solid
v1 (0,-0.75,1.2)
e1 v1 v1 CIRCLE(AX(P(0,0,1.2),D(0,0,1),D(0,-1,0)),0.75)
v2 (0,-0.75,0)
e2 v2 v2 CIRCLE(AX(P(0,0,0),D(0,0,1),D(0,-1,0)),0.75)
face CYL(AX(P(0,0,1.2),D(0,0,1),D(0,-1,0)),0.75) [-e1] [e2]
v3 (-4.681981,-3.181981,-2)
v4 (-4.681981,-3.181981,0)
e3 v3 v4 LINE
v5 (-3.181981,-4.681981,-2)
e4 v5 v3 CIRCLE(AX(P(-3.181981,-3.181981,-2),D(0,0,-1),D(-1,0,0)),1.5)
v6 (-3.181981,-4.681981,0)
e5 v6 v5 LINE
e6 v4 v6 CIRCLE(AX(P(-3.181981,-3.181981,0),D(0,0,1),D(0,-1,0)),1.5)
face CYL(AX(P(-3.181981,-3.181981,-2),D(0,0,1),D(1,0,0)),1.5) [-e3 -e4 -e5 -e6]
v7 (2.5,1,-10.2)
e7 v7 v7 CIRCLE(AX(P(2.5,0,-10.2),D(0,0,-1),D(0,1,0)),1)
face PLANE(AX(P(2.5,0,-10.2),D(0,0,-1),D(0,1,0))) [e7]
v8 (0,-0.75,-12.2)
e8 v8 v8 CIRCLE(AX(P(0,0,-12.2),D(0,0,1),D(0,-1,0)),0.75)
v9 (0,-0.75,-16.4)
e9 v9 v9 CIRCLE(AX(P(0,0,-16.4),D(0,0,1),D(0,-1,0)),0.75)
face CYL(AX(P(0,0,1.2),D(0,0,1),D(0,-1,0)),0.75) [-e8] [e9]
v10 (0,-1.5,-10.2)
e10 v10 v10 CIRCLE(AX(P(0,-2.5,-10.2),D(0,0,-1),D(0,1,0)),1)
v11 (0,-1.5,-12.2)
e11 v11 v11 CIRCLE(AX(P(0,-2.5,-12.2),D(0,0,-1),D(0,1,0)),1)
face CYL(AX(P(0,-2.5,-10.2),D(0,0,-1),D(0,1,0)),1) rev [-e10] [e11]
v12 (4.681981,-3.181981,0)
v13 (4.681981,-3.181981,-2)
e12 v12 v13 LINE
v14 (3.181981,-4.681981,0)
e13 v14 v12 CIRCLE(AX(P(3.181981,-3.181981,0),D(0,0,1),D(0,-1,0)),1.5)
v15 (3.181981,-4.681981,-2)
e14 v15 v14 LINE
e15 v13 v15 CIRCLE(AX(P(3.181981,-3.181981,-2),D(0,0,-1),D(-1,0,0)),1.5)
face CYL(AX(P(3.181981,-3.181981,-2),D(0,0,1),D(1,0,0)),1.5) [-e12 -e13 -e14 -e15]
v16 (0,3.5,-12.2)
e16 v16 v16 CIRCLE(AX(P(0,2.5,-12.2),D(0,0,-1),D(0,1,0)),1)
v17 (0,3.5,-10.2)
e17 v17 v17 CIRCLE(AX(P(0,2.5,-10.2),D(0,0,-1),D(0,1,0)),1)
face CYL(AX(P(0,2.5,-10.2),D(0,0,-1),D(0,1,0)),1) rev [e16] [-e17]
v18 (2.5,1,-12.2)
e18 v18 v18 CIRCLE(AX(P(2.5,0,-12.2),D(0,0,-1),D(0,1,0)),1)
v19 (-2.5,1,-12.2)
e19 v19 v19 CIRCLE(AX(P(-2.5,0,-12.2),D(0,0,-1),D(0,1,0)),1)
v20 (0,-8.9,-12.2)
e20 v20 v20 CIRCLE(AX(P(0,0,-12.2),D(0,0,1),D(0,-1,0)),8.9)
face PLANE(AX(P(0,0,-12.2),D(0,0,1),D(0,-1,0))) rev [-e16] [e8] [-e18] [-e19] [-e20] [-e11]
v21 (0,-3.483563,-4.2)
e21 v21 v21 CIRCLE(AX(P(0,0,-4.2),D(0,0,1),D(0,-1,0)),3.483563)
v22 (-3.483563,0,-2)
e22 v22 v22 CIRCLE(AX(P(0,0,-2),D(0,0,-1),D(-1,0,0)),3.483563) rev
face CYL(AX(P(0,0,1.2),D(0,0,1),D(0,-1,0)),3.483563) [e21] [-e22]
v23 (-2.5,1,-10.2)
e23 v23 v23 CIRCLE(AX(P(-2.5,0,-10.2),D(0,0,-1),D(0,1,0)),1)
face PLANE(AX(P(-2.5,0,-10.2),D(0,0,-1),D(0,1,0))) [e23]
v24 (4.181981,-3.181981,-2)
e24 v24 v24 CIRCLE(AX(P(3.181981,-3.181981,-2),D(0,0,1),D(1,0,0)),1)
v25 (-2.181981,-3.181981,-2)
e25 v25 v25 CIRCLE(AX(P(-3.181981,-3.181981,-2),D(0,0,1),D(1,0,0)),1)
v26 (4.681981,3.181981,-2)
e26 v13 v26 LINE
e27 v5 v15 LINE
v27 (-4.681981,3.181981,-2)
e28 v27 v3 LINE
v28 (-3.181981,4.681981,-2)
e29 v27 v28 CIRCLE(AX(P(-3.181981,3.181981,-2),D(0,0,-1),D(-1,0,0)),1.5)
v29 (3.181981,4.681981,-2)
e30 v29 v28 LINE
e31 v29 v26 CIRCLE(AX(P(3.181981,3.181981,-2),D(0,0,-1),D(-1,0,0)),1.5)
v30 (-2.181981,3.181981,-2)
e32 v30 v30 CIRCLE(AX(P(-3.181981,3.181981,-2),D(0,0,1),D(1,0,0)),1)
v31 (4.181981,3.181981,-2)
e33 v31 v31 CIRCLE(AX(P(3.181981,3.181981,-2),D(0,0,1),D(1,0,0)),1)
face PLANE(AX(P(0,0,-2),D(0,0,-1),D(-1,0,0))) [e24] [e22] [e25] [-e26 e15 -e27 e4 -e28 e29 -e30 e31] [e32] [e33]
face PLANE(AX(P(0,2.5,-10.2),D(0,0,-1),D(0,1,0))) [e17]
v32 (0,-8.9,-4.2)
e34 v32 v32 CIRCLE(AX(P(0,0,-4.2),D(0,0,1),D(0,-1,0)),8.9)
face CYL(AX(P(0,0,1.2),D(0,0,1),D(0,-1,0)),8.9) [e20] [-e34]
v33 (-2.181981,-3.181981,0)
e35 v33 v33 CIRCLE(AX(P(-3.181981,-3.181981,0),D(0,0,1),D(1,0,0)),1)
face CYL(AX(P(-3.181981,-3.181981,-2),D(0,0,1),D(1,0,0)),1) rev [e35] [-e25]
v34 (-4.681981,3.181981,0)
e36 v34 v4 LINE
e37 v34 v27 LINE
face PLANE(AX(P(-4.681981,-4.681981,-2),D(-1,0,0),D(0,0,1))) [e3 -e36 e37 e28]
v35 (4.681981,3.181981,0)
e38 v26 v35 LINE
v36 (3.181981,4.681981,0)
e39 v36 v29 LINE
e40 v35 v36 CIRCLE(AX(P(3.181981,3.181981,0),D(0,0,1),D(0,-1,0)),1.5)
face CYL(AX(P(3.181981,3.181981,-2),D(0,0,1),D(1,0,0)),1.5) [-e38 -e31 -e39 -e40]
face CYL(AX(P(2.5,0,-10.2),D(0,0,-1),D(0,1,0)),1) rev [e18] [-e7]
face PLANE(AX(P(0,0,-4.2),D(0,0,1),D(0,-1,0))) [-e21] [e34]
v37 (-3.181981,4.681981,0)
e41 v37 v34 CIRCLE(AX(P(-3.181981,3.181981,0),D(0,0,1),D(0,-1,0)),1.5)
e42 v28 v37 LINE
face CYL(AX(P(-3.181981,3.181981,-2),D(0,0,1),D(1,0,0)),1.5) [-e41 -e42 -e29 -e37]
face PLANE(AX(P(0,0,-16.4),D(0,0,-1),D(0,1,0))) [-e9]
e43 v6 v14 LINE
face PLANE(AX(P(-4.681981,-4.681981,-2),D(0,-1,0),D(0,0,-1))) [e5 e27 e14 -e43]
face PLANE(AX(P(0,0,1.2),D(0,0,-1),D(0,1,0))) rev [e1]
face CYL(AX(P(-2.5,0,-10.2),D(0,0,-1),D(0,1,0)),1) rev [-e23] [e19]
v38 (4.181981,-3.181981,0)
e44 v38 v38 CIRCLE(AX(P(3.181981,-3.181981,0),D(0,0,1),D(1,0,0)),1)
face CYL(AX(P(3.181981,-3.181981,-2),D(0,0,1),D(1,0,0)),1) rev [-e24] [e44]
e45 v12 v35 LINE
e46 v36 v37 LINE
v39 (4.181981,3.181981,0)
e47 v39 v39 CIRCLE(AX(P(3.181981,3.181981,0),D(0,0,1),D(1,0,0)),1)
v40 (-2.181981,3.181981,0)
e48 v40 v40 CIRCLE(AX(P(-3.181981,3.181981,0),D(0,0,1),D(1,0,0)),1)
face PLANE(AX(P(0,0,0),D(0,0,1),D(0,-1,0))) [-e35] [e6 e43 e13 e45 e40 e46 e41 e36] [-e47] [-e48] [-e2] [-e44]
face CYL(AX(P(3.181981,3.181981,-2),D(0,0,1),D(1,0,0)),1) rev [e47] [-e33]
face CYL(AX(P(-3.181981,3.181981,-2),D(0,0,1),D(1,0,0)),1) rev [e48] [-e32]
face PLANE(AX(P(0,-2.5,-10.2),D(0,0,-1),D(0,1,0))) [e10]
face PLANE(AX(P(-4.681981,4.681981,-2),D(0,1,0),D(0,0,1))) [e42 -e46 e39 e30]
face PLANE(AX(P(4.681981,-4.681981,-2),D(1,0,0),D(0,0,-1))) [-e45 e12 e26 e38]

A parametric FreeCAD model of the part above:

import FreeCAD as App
import Part
import Sketcher

V = App.Vector


def edges_at(feature, points):
    """Names of the edges that pass closest to the given points."""
    edges = feature.Shape.Edges
    near = lambda p: min(range(len(edges)), key=lambda i: edges[i].distToShape(Part.Vertex(*p))[0])
    return sorted({f"Edge{near(p) + 1}" for p in points})

doc = App.newDocument("Part")
body = doc.addObject("PartDesign::Body", "Body")

sketch1 = body.newObject("Sketcher::SketchObject", "Sketch")
sketch1.AttachmentSupport = (doc.getObject("YZ_Plane"), [""])
sketch1.MapMode = "FlatFace"
sketch1.addGeometry([
    Part.LineSegment(V(0.8, 1.2, 0), V(0, 1.2, 0)),
    Part.LineSegment(V(0, 1.2, 0), V(0, -16.4, 0)),
    Part.LineSegment(V(0, -16.4, 0), V(0.8, -16.4, 0)),
    Part.LineSegment(V(0.8, -16.4, 0), V(0.8, -12.2, 0)),
    Part.LineSegment(V(0.8, -12.2, 0), V(8.9, -12.2, 0)),
    Part.LineSegment(V(8.9, -12.2, 0), V(8.9, -4.2, 0)),
    Part.LineSegment(V(8.9, -4.2, 0), V(3.5, -4.2, 0)),
    Part.LineSegment(V(3.5, -4.2, 0), V(3.5, 0, 0)),
    Part.LineSegment(V(3.5, 0, 0), V(0.7, 0, 0)),
    Part.LineSegment(V(0.8, 0, 0), V(0.8, 1.2, 0)),
], False)
sketch1.addConstraint([
    Sketcher.Constraint("Coincident", 0, 2, 1, 1),
    Sketcher.Constraint("Coincident", 1, 2, 2, 1),
    Sketcher.Constraint("Coincident", 2, 2, 3, 1),
    Sketcher.Constraint("Coincident", 3, 2, 4, 1),
    Sketcher.Constraint("Coincident", 4, 2, 5, 1),
    Sketcher.Constraint("Coincident", 5, 2, 6, 1),
    Sketcher.Constraint("Coincident", 6, 2, 7, 1),
    Sketcher.Constraint("Coincident", 7, 2, 8, 1),
    Sketcher.Constraint("Coincident", 8, 2, 9, 1),
    Sketcher.Constraint("Coincident", 9, 2, 0, 1),
    Sketcher.Constraint("Horizontal", 0),
    Sketcher.Constraint("Vertical", 1),
    Sketcher.Constraint("Horizontal", 2),
    Sketcher.Constraint("Vertical", 3),
    Sketcher.Constraint("Horizontal", 4),
    Sketcher.Constraint("Vertical", 5),
    Sketcher.Constraint("Horizontal", 6),
    Sketcher.Constraint("Vertical", 7),
    Sketcher.Constraint("Horizontal", 8),
    Sketcher.Constraint("Vertical", 9),
    Sketcher.Constraint("PointOnObject", 0, 2, -2),
    Sketcher.Constraint("PointOnObject", 7, 2, -1),
    Sketcher.Constraint("Vertical", 3, 2, 8, 2),
    Sketcher.Constraint("Equal", 3, 7),
    Sketcher.Constraint("DistanceY", 5, 1, 5, 2, 8.0),
    Sketcher.Constraint("DistanceY", 1, 2, 1, 1, 17.6),
    Sketcher.Constraint("DistanceY", 3, 1, 3, 2, 4.2),
    Sketcher.Constraint("DistanceX", 0, 2, 0, 1, 0.75),
    Sketcher.Constraint("DistanceX", 4, 1, 4, 2, 8.15),
    Sketcher.Constraint("DistanceX", 6, 2, 6, 1, 5.416437),
])
revolution = body.newObject("PartDesign::Revolution", "Revolution")
revolution.Profile = sketch1
revolution.ReferenceAxis = (sketch1, ["V_Axis"])
revolution.Angle = 360

sketch2 = body.newObject("Sketcher::SketchObject", "Sketch001")
sketch2.AttachmentSupport = (doc.getObject("XY_Plane"), [""])
sketch2.MapMode = "FlatFace"
sketch2.addGeometry([
    Part.LineSegment(V(-4.7, 4.7, 0), V(-4.7, -4.7, 0)),
    Part.LineSegment(V(-4.7, -4.7, 0), V(4.7, -4.7, 0)),
    Part.LineSegment(V(4.7, -4.7, 0), V(4.7, 4.7, 0)),
    Part.LineSegment(V(4.7, 4.7, 0), V(-4.7, 4.7, 0)),
    Part.Circle(V(-3.2, -3.2, 0), V(0, 0, 1), 1),
    Part.Circle(V(3.2, -3.2, 0), V(0, 0, 1), 1),
    Part.Circle(V(-3.2, 3.2, 0), V(0, 0, 1), 1),
    Part.Circle(V(3.2, 3.2, 0), V(0, 0, 1), 1),
], False)
sketch2.addConstraint([
    Sketcher.Constraint("Coincident", 0, 2, 1, 1),
    Sketcher.Constraint("Coincident", 1, 2, 2, 1),
    Sketcher.Constraint("Coincident", 2, 2, 3, 1),
    Sketcher.Constraint("Coincident", 3, 2, 0, 1),
    Sketcher.Constraint("Vertical", 0),
    Sketcher.Constraint("Horizontal", 1),
    Sketcher.Constraint("Vertical", 2),
    Sketcher.Constraint("Horizontal", 3),
    Sketcher.Constraint("Equal", 4, 5),
    Sketcher.Constraint("Equal", 5, 6),
    Sketcher.Constraint("Equal", 6, 7),
    Sketcher.Constraint("Symmetric", 5, 3, 6, 3, -1, 1),
    Sketcher.Constraint("Symmetric", 4, 3, 7, 3, -1, 1),
    Sketcher.Constraint("Symmetric", 0, 2, 2, 2, -1, 1),
    Sketcher.Constraint("Symmetric", 4, 3, 5, 3, -2),
    Sketcher.Constraint("Equal", 3, 0),
    Sketcher.Constraint("Diameter", 4, 2.0),
    Sketcher.Constraint("DistanceX", 0, 2, 4, 3, 1.5),
    Sketcher.Constraint("DistanceY", 0, 2, 4, 3, 1.5),
    Sketcher.Constraint("DistanceX", 1, 1, 1, 2, 9.363961),
])
pad1 = body.newObject("PartDesign::Pad", "Pad")
pad1.Profile = sketch2
pad1.Length = 2
pad1.Reversed = True
doc.recompute()

fillet = body.newObject("PartDesign::Fillet", "Fillet")
fillet.Base = (pad1, edges_at(pad1, [
    (4.682, 4.682, -1),
    (4.682, -4.682, -1),
    (-4.682, -4.682, -1),
    (-4.682, 4.682, -1),
]))
fillet.Radius = 1.5

sketch3 = body.newObject("Sketcher::SketchObject", "Sketch002")
sketch3.AttachmentSupport = (doc.getObject("XY_Plane"), [""])
sketch3.MapMode = "FlatFace"
sketch3.AttachmentOffset = App.Placement(V(0, 0, -12.2), App.Rotation())
sketch3.addGeometry([
    Part.Circle(V(0, 2.5, 0), V(0, 0, 1), 1),
    Part.Circle(V(-2.5, 0, 0), V(0, 0, 1), 1),
    Part.Circle(V(0, -2.5, 0), V(0, 0, 1), 1),
    Part.Circle(V(2.5, 0, 0), V(0, 0, 1), 1),
], False)
sketch3.addConstraint([
    Sketcher.Constraint("Equal", 0, 1),
    Sketcher.Constraint("Equal", 1, 2),
    Sketcher.Constraint("Equal", 2, 3),
    Sketcher.Constraint("Symmetric", 0, 3, 2, 3, -1, 1),
    Sketcher.Constraint("Symmetric", 1, 3, 3, 3, -1, 1),
    Sketcher.Constraint("PointOnObject", 0, 3, -2),
    Sketcher.Constraint("PointOnObject", 1, 3, -1),
    Sketcher.Constraint("Diameter", 0, 2.0),
    Sketcher.Constraint("DistanceY", 2, 3, 0, 3, 5.0),
    Sketcher.Constraint("DistanceX", 1, 3, 3, 3, 5.0),
])
pocket1 = body.newObject("PartDesign::Pocket", "Pocket")
pocket1.Profile = sketch3
pocket1.Length = 2
pocket1.Reversed = True

doc.recompute()
